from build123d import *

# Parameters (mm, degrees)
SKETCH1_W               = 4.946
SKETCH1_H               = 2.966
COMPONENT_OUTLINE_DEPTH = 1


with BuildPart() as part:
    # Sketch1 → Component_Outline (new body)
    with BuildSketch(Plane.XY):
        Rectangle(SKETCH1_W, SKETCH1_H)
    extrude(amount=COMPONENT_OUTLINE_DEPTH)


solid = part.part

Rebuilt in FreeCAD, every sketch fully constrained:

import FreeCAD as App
import Part
import Sketcher
from FreeCAD import Vector
Q = App.Units.Quantity


def add_polygon(sketch, points):
    """Adds a closed chain of lines whose ends are joined by coincident constraints."""
    first, n = sketch.GeometryCount, len(points)
    for a, b in zip(points, points[1:] + points[:1]):
        sketch.addGeometry(Part.LineSegment(App.Vector(*a, 0), App.Vector(*b, 0)), False)
    for i in range(n):
        sketch.addConstraint(Sketcher.Constraint("Coincident", first + i, 2, first + (i + 1) % n, 1))

doc = App.newDocument("Part")
body = doc.addObject("PartDesign::Body", "Body")

sketch1 = body.newObject("Sketcher::SketchObject", "Sketch")
sketch1.AttachmentSupport = (doc.getObject("XY_Plane"), [""])
sketch1.MapMode = "FlatFace"
add_polygon(sketch1, [(-2.5, 1.5), (-2.5, -1.5), (2.5, -1.5), (2.5, 1.5)])
sketch1.addConstraint([
    Sketcher.Constraint("Vertical", 0),
    Sketcher.Constraint("Horizontal", 1),
    Sketcher.Constraint("Vertical", 2),
    Sketcher.Constraint("Horizontal", 3),
    Sketcher.Constraint("Symmetric", 0, 2, 2, 2, -1, 1),
    Sketcher.Constraint("DistanceX", 1, 1, 1, 2, Q("4.946 mm")),
    Sketcher.Constraint("DistanceY", 0, 2, 0, 1, Q("2.966 mm")),
])
pad1 = body.newObject("PartDesign::Pad", "Pad")
pad1.Profile = sketch1
pad1.Length = 1

doc.recompute()
